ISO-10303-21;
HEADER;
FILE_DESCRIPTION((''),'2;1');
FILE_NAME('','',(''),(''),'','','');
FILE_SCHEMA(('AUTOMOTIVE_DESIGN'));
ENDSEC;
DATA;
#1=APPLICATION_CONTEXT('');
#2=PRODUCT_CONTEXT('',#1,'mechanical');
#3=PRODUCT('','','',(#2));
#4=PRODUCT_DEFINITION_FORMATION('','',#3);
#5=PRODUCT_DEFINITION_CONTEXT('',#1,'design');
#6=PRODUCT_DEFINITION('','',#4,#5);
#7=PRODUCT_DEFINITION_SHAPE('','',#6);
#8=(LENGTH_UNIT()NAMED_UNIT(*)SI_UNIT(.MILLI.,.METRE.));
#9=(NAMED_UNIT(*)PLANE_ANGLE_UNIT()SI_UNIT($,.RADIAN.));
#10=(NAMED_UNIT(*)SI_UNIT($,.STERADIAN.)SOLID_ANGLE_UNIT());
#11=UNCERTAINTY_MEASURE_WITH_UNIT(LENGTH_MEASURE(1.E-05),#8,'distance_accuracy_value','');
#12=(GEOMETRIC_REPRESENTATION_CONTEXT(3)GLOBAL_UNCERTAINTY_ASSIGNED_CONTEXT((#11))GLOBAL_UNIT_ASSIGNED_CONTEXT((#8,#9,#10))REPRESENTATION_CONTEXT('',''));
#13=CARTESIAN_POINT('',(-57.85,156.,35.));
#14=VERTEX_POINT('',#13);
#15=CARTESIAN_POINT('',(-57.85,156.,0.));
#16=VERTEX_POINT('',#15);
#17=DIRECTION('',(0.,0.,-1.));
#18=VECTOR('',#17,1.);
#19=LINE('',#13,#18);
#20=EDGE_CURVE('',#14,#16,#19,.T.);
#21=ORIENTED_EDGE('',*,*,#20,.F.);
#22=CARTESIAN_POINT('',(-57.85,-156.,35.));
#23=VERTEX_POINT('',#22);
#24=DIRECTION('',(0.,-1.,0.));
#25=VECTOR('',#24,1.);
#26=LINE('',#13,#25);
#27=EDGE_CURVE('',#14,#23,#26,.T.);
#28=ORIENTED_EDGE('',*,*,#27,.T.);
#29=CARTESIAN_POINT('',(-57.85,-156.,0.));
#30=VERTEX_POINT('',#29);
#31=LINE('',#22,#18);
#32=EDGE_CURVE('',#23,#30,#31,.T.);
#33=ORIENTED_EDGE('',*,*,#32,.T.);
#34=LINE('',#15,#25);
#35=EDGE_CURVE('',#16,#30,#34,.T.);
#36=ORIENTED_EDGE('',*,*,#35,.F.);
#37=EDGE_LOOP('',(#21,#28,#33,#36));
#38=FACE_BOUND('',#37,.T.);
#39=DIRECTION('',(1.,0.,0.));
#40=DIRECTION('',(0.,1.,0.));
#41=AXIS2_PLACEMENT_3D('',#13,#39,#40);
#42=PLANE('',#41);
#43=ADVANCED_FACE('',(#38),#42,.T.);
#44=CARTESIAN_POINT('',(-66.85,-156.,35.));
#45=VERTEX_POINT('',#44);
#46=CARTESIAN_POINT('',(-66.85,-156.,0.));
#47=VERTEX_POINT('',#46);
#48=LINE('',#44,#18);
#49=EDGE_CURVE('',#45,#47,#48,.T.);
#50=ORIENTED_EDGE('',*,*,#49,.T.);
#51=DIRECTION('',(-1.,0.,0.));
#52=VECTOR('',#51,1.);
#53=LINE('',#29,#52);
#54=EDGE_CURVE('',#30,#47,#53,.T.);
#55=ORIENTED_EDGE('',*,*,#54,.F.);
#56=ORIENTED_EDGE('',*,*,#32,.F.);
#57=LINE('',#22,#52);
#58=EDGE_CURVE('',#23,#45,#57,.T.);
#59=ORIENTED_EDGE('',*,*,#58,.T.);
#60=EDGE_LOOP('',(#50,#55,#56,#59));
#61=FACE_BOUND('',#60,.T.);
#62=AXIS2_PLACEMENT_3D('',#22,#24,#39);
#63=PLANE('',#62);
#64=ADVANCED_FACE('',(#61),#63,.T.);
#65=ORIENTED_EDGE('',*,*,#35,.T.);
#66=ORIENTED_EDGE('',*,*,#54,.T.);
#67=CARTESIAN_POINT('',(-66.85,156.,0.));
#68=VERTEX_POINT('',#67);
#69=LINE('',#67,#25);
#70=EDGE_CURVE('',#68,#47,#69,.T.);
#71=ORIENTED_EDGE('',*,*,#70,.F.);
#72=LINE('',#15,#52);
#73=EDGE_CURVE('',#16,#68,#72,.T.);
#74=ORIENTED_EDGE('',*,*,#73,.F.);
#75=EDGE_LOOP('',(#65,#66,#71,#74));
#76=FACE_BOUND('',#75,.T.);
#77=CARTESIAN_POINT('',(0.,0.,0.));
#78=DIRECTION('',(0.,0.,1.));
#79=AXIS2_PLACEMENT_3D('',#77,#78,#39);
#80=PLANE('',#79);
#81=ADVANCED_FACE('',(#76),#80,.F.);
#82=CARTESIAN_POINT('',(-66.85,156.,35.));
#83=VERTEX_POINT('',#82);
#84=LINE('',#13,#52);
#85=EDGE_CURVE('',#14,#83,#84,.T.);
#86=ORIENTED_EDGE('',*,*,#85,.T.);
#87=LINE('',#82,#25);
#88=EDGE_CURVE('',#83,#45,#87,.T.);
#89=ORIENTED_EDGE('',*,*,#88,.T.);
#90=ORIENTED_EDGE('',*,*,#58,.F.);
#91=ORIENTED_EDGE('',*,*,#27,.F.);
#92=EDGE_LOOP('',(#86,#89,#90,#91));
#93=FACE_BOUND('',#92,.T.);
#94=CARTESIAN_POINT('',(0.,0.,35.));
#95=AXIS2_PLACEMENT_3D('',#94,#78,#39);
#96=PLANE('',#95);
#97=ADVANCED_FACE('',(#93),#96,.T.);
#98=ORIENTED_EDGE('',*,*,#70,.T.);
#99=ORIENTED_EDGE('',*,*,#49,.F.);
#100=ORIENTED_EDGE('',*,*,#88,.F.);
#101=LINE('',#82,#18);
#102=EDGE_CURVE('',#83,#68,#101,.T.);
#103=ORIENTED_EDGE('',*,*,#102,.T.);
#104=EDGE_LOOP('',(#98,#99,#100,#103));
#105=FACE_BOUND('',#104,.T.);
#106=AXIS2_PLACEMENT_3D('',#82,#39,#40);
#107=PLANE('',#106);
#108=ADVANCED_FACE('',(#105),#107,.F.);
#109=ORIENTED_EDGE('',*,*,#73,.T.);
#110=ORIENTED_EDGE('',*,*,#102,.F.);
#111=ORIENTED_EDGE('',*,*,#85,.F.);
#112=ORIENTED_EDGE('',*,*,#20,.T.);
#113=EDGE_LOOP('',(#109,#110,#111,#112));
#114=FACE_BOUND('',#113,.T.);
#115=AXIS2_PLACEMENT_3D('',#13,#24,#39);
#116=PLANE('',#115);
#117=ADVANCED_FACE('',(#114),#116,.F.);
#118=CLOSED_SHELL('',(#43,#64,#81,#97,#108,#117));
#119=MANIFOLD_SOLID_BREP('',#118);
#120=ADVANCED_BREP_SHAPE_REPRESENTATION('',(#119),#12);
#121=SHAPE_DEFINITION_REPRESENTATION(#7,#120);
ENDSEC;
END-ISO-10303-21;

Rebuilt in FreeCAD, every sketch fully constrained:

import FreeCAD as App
import Part
import Sketcher

V = App.Vector
Q = App.Units.Quantity


def add_polygon(sketch, points):
    """Adds a closed chain of lines whose ends are joined by coincident constraints."""
    first, n = sketch.GeometryCount, len(points)
    for a, b in zip(points, points[1:] + points[:1]):
        sketch.addGeometry(Part.LineSegment(App.Vector(*a, 0), App.Vector(*b, 0)), False)
    for i in range(n):
        sketch.addConstraint(Sketcher.Constraint("Coincident", first + i, 2, first + (i + 1) % n, 1))

doc = App.newDocument("Part")
params = doc.addObject("Spreadsheet::Sheet", "Params")
for row, (alias, value) in enumerate([
    ("sketch1_width", "9 mm"),
    ("sketch1_height", "312 mm"),
    ("pad1_length", "35 mm"),
], start=1):
    params.set(f"A{row}", alias)
    params.set(f"B{row}", "=" + value)
    params.setAlias(f"B{row}", alias)

body = doc.addObject("PartDesign::Body", "Body")

# Sketch on XY plane
sketch1 = body.newObject("Sketcher::SketchObject", "Sketch")
sketch1.AttachmentSupport = (doc.getObject("XY_Plane"), [""])
sketch1.MapMode = "FlatFace"
add_polygon(sketch1, [(-67, 156), (-67, -156), (-58, -156), (-58, 156)])  # lines 0-3
sketch1.addConstraint([
    Sketcher.Constraint("Vertical", 0),
    Sketcher.Constraint("Horizontal", 1),
    Sketcher.Constraint("Vertical", 2),
    Sketcher.Constraint("Horizontal", 3),
    Sketcher.Constraint("DistanceX", 1, 1, 1, 2, Q("9 mm")),
    Sketcher.Constraint("DistanceY", 0, 2, 0, 1, Q("312 mm")),
    Sketcher.Constraint("DistanceY", 0, 2, -1, 1, Q("156 mm")),
    Sketcher.Constraint("DistanceX", 0, 2, -1, 1, Q("66.85 mm")),
])
sketch1.setExpression("Constraints[8]", "Params.sketch1_width")
sketch1.setExpression("Constraints[9]", "Params.sketch1_height")
pad1 = body.newObject("PartDesign::Pad", "Pad")
pad1.Profile = sketch1
pad1.setExpression("Length", "Params.pad1_length")

doc.recompute()
